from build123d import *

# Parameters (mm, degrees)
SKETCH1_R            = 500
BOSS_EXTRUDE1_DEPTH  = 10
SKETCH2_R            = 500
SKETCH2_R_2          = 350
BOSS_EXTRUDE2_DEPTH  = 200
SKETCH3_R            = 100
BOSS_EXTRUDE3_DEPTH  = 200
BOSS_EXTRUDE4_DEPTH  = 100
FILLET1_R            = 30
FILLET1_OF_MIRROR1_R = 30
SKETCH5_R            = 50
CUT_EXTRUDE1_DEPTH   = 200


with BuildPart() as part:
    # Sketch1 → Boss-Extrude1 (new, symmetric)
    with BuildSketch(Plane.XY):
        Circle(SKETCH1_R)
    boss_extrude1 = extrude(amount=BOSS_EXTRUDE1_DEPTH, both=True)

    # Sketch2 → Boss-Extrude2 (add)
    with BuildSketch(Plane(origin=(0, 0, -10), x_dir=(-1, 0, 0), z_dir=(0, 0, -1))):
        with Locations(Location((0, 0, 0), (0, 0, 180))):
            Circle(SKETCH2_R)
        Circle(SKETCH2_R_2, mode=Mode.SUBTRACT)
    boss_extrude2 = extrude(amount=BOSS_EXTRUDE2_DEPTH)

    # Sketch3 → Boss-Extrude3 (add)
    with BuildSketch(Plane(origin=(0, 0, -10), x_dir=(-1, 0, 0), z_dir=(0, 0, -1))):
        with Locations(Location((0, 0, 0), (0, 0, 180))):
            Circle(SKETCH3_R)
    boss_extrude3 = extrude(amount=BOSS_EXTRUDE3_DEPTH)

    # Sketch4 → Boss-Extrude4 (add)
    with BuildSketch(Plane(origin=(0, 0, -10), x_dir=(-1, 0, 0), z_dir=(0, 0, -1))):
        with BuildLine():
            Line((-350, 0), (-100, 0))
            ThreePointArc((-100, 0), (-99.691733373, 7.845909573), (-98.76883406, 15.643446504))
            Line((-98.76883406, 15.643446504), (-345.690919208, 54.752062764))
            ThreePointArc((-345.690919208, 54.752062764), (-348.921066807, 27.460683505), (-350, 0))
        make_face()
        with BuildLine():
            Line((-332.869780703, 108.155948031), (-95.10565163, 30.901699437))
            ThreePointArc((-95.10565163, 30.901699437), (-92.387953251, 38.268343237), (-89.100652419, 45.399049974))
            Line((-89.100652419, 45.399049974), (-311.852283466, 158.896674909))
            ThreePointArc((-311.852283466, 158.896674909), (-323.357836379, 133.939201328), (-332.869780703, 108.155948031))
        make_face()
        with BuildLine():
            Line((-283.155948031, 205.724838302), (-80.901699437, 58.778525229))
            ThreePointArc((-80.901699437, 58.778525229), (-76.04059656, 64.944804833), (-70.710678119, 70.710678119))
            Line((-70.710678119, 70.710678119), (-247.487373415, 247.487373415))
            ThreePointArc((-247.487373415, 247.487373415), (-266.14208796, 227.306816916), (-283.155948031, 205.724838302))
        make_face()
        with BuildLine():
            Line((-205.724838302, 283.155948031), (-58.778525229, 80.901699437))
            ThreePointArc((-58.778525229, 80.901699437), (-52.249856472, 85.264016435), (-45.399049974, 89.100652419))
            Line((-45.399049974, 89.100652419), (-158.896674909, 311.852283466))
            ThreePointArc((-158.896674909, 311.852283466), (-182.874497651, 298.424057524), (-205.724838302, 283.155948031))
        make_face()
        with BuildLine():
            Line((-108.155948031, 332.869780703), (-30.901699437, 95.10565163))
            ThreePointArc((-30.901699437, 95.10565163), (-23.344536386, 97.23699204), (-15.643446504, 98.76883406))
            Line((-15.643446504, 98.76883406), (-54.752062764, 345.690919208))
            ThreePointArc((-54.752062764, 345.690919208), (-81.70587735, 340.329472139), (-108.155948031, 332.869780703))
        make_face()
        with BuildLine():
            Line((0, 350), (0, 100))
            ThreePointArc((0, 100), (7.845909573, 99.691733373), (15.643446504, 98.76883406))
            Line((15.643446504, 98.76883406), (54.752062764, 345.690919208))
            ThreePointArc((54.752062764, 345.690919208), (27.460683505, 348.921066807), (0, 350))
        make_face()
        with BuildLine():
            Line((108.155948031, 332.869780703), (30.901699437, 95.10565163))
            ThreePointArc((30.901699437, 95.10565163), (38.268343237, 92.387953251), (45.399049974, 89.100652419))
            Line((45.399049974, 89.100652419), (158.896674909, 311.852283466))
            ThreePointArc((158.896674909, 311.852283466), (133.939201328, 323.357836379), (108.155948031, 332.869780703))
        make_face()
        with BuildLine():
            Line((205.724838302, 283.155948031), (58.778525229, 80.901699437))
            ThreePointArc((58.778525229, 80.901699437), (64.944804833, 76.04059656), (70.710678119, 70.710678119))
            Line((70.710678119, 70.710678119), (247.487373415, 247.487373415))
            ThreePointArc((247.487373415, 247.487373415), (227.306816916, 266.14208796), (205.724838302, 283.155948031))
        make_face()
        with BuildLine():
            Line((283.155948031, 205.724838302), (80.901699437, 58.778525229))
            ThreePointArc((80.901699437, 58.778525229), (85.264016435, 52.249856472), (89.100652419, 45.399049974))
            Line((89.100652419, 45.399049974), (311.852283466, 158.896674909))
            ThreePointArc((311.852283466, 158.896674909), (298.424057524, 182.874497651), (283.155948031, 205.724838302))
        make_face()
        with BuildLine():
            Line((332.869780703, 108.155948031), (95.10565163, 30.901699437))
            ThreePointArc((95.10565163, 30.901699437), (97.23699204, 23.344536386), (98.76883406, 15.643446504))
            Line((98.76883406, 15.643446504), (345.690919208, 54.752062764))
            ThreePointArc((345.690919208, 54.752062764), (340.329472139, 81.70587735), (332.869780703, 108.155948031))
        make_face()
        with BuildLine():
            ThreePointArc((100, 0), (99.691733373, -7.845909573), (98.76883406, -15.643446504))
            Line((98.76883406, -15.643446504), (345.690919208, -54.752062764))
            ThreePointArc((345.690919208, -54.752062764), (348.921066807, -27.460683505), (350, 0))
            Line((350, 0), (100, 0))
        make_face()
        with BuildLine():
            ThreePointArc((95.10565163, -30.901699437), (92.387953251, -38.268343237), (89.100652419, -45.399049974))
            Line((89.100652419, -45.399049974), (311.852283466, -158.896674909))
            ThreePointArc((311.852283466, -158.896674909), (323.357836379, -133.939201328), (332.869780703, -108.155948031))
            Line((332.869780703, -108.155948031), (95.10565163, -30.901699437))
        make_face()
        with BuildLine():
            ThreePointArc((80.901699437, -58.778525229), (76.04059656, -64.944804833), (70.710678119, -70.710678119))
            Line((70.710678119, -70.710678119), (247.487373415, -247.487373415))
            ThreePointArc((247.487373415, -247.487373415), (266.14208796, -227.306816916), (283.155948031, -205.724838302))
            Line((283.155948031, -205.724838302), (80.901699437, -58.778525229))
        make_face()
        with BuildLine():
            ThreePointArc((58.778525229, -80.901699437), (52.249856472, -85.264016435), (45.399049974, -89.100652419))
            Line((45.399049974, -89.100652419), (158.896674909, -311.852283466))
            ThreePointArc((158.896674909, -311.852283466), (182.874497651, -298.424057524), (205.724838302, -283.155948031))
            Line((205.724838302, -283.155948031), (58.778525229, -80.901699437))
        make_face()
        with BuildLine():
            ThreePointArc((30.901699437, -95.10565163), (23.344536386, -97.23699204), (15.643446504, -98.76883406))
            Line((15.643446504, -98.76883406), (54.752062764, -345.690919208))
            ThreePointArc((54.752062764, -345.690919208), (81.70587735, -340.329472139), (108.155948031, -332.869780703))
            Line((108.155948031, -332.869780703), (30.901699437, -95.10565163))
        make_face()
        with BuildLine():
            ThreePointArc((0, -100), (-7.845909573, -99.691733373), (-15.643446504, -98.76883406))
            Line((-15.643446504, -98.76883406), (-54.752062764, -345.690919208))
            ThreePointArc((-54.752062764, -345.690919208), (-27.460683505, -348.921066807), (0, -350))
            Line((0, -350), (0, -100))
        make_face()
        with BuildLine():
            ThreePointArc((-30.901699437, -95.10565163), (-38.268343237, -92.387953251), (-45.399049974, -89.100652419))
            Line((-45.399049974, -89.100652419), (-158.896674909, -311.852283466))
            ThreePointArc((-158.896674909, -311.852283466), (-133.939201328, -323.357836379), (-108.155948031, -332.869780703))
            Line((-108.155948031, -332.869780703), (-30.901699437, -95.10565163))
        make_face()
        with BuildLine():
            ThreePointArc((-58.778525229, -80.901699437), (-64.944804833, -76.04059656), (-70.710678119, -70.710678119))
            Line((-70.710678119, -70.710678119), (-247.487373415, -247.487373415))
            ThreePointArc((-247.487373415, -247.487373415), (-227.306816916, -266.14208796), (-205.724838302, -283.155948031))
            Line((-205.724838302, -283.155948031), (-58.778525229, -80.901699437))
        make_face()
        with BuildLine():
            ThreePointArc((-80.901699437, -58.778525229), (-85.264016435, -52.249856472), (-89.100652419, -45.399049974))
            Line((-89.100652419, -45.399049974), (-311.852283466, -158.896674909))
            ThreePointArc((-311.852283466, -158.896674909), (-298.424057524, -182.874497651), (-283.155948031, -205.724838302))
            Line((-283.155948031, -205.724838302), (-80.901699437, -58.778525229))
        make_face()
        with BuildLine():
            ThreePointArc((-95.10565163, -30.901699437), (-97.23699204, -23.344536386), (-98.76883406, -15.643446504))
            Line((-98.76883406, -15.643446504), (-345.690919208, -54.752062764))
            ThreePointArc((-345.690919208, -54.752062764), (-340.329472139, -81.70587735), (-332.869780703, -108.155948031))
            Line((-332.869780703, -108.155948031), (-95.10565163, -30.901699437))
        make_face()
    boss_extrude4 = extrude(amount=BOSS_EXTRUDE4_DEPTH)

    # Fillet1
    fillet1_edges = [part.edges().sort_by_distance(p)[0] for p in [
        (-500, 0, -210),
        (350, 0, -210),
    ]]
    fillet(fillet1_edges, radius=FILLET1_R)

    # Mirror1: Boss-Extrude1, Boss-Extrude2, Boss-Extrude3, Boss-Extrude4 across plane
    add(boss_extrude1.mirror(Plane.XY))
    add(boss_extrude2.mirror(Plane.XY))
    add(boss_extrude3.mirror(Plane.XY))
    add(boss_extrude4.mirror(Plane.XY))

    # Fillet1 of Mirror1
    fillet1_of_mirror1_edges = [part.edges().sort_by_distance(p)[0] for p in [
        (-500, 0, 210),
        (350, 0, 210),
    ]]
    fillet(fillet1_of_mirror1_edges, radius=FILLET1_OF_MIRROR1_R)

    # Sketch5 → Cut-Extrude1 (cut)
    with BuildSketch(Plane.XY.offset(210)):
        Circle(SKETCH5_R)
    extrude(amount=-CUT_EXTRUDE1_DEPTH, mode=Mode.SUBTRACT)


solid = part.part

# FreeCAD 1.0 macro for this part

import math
import FreeCAD as App
import Part
import Sketcher
from FreeCAD import Vector
Q = App.Units.Quantity


def edges_at(feature, points):
    """Names of the edges that pass closest to the given points."""
    edges = feature.Shape.Edges
    near = lambda p: min(range(len(edges)), key=lambda i: edges[i].distToShape(Part.Vertex(*p))[0])
    return sorted({f"Edge{near(p) + 1}" for p in points})

doc = App.newDocument("Part")
body = doc.addObject("PartDesign::Body", "Body")

# Sketch on XY plane
sketch1 = body.newObject("Sketcher::SketchObject", "Sketch")
sketch1.AttachmentSupport = (doc.getObject("XY_Plane"), [""])
sketch1.MapMode = "FlatFace"
sketch1.addGeometry(Part.Circle(Vector(0, 0, 0), Vector(0, 0, 1), 500), False)
sketch1.addConstraint(Sketcher.Constraint("Coincident", 0, 3, -1, 1))
sketch1.addConstraint(Sketcher.Constraint("Diameter", 0, 1000.0))
pad1 = body.newObject("PartDesign::Pad", "Pad")
pad1.Profile = sketch1
pad1.Length = 20
pad1.Midplane = True

# Sketch on XY plane
sketch2 = body.newObject("Sketcher::SketchObject", "Sketch001")
sketch2.AttachmentSupport = (doc.getObject("XY_Plane"), [""])
sketch2.MapMode = "FlatFace"
sketch2.AttachmentOffset = App.Placement(Vector(0, 0, -10), App.Rotation())
sketch2.addGeometry(Part.Circle(Vector(0, 0, 0), Vector(0, 0, 1), 500), False)
sketch2.addGeometry(Part.Circle(Vector(0, 0, 0), Vector(0, 0, 1), 350), False)
sketch2.addConstraint(Sketcher.Constraint("Coincident", 0, 3, -1, 1))
sketch2.addConstraint(Sketcher.Constraint("Coincident", 1, 3, -1, 1))
sketch2.addConstraint(Sketcher.Constraint("Diameter", 0, 1000.0))
sketch2.addConstraint(Sketcher.Constraint("Diameter", 1, 700.0))
pad2 = body.newObject("PartDesign::Pad", "Pad001")
pad2.Profile = sketch2
pad2.Length = 200
pad2.Reversed = True

# Sketch on XY plane
sketch3 = body.newObject("Sketcher::SketchObject", "Sketch002")
sketch3.AttachmentSupport = (doc.getObject("XY_Plane"), [""])
sketch3.MapMode = "FlatFace"
sketch3.AttachmentOffset = App.Placement(Vector(0, 0, -10), App.Rotation())
sketch3.addGeometry(Part.Circle(Vector(0, 0, 0), Vector(0, 0, 1), 100), False)
sketch3.addConstraint(Sketcher.Constraint("Coincident", 0, 3, -1, 1))
sketch3.addConstraint(Sketcher.Constraint("Diameter", 0, 200.0))
pad3 = body.newObject("PartDesign::Pad", "Pad002")
pad3.Profile = sketch3
pad3.Length = 200
pad3.Reversed = True

# Sketch on XY plane
sketch4 = body.newObject("Sketcher::SketchObject", "Sketch003")
sketch4.AttachmentSupport = (doc.getObject("XY_Plane"), [""])
sketch4.MapMode = "FlatFace"
sketch4.AttachmentOffset = App.Placement(Vector(0, 0, -10), App.Rotation())
sketch4.addGeometry(Part.LineSegment(Vector(350, 0, 0), Vector(100, 0, 0)), False)
sketch4.addGeometry(Part.ArcOfCircle(Part.Circle(Vector(0, 0, 0), Vector(0, 0, 1), 100), math.radians(0), math.radians(9)), False)
sketch4.addGeometry(Part.LineSegment(Vector(98.768834, 15.643447, 0), Vector(345.690919, 54.752063, 0)), False)
sketch4.addGeometry(Part.ArcOfCircle(Part.Circle(Vector(0, 0, 0), Vector(0, 0, 1), 350), math.radians(0), math.radians(9)), False)
sketch4.addGeometry(Part.LineSegment(Vector(332.869781, 108.155948, 0), Vector(95.105652, 30.901699, 0)), False)
sketch4.addGeometry(Part.ArcOfCircle(Part.Circle(Vector(0, 0, 0), Vector(0, 0, 1), 100), math.radians(18), math.radians(27)), False)
sketch4.addGeometry(Part.LineSegment(Vector(89.100652, 45.39905, 0), Vector(311.852283, 158.896675, 0)), False)
sketch4.addGeometry(Part.ArcOfCircle(Part.Circle(Vector(0, 0, 0), Vector(0, 0, 1), 350), math.radians(18), math.radians(27)), False)
sketch4.addGeometry(Part.LineSegment(Vector(283.155948, 205.724838, 0), Vector(80.901699, 58.778525, 0)), False)
sketch4.addGeometry(Part.ArcOfCircle(Part.Circle(Vector(0, 0, 0), Vector(0, 0, 1), 100), math.radians(36), math.radians(45)), False)
sketch4.addGeometry(Part.LineSegment(Vector(70.710678, 70.710678, 0), Vector(247.487373, 247.487373, 0)), False)
sketch4.addGeometry(Part.ArcOfCircle(Part.Circle(Vector(0, 0, 0), Vector(0, 0, 1), 350), math.radians(36), math.radians(45)), False)
sketch4.addGeometry(Part.LineSegment(Vector(205.724838, 283.155948, 0), Vector(58.778525, 80.901699, 0)), False)
sketch4.addGeometry(Part.ArcOfCircle(Part.Circle(Vector(0, 0, 0), Vector(0, 0, 1), 100), math.radians(54), math.radians(63)), False)
sketch4.addGeometry(Part.LineSegment(Vector(45.39905, 89.100652, 0), Vector(158.896675, 311.852283, 0)), False)
sketch4.addGeometry(Part.ArcOfCircle(Part.Circle(Vector(0, 0, 0), Vector(0, 0, 1), 350), math.radians(54), math.radians(63)), False)
sketch4.addGeometry(Part.LineSegment(Vector(108.155948, 332.869781, 0), Vector(30.901699, 95.105652, 0)), False)
sketch4.addGeometry(Part.ArcOfCircle(Part.Circle(Vector(0, 0, 0), Vector(0, 0, 1), 100), math.radians(72), math.radians(81)), False)
sketch4.addGeometry(Part.LineSegment(Vector(15.643447, 98.768834, 0), Vector(54.752063, 345.690919, 0)), False)
sketch4.addGeometry(Part.ArcOfCircle(Part.Circle(Vector(0, 0, 0), Vector(0, 0, 1), 350), math.radians(72), math.radians(81)), False)
sketch4.addGeometry(Part.LineSegment(Vector(0, 350, 0), Vector(0, 100, 0)), False)
sketch4.addGeometry(Part.ArcOfCircle(Part.Circle(Vector(0, 0, 0), Vector(0, 0, 1), 100), math.radians(90), math.radians(99)), False)
sketch4.addGeometry(Part.LineSegment(Vector(-15.643447, 98.768834, 0), Vector(-54.752063, 345.690919, 0)), False)
sketch4.addGeometry(Part.ArcOfCircle(Part.Circle(Vector(0, 0, 0), Vector(0, 0, 1), 350), math.radians(90), math.radians(99)), False)
sketch4.addGeometry(Part.LineSegment(Vector(-108.155948, 332.869781, 0), Vector(-30.901699, 95.105652, 0)), False)
sketch4.addGeometry(Part.ArcOfCircle(Part.Circle(Vector(0, 0, 0), Vector(0, 0, 1), 100), math.radians(108), math.radians(117)), False)
sketch4.addGeometry(Part.LineSegment(Vector(-45.39905, 89.100652, 0), Vector(-158.896675, 311.852283, 0)), False)
sketch4.addGeometry(Part.ArcOfCircle(Part.Circle(Vector(0, 0, 0), Vector(0, 0, 1), 350), math.radians(108), math.radians(117)), False)
sketch4.addGeometry(Part.LineSegment(Vector(-205.724838, 283.155948, 0), Vector(-58.778525, 80.901699, 0)), False)
sketch4.addGeometry(Part.ArcOfCircle(Part.Circle(Vector(0, 0, 0), Vector(0, 0, 1), 100), math.radians(126), math.radians(135)), False)
sketch4.addGeometry(Part.LineSegment(Vector(-70.710678, 70.710678, 0), Vector(-247.487373, 247.487373, 0)), False)
sketch4.addGeometry(Part.ArcOfCircle(Part.Circle(Vector(0, 0, 0), Vector(0, 0, 1), 350), math.radians(126), math.radians(135)), False)
sketch4.addGeometry(Part.LineSegment(Vector(-283.155948, 205.724838, 0), Vector(-80.901699, 58.778525, 0)), False)
sketch4.addGeometry(Part.ArcOfCircle(Part.Circle(Vector(0, 0, 0), Vector(0, 0, 1), 100), math.radians(144), math.radians(153)), False)
sketch4.addGeometry(Part.LineSegment(Vector(-89.100652, 45.39905, 0), Vector(-311.852283, 158.896675, 0)), False)
sketch4.addGeometry(Part.ArcOfCircle(Part.Circle(Vector(0, 0, 0), Vector(0, 0, 1), 350), math.radians(144), math.radians(153)), False)
sketch4.addGeometry(Part.LineSegment(Vector(-332.869781, 108.155948, 0), Vector(-95.105652, 30.901699, 0)), False)
sketch4.addGeometry(Part.ArcOfCircle(Part.Circle(Vector(0, 0, 0), Vector(0, 0, 1), 100), math.radians(162), math.radians(171)), False)
sketch4.addGeometry(Part.LineSegment(Vector(-98.768834, 15.643447, 0), Vector(-345.690919, 54.752063, 0)), False)
sketch4.addGeometry(Part.ArcOfCircle(Part.Circle(Vector(0, 0, 0), Vector(0, 0, 1), 350), math.radians(162), math.radians(171)), False)
sketch4.addGeometry(Part.ArcOfCircle(Part.Circle(Vector(0, 0, 0), Vector(0, 0, 1), 100), math.radians(-180), math.radians(-171)), False)
sketch4.addGeometry(Part.LineSegment(Vector(-98.768834, -15.643447, 0), Vector(-345.690919, -54.752063, 0)), False)
sketch4.addGeometry(Part.ArcOfCircle(Part.Circle(Vector(0, 0, 0), Vector(0, 0, 1), 350), math.radians(180), math.radians(189)), False)
sketch4.addGeometry(Part.LineSegment(Vector(-350, 0, 0), Vector(-100, 0, 0)), False)
sketch4.addGeometry(Part.ArcOfCircle(Part.Circle(Vector(0, 0, 0), Vector(0, 0, 1), 100), math.radians(-162), math.radians(-153)), False)
sketch4.addGeometry(Part.LineSegment(Vector(-89.100652, -45.39905, 0), Vector(-311.852283, -158.896675, 0)), False)
sketch4.addGeometry(Part.ArcOfCircle(Part.Circle(Vector(0, 0, 0), Vector(0, 0, 1), 350), math.radians(-162), math.radians(-153)), False)
sketch4.addGeometry(Part.LineSegment(Vector(-332.869781, -108.155948, 0), Vector(-95.105652, -30.901699, 0)), False)
sketch4.addGeometry(Part.ArcOfCircle(Part.Circle(Vector(0, 0, 0), Vector(0, 0, 1), 100), math.radians(-144), math.radians(-135)), False)
sketch4.addGeometry(Part.LineSegment(Vector(-70.710678, -70.710678, 0), Vector(-247.487373, -247.487373, 0)), False)
sketch4.addGeometry(Part.ArcOfCircle(Part.Circle(Vector(0, 0, 0), Vector(0, 0, 1), 350), math.radians(-144), math.radians(-135)), False)
sketch4.addGeometry(Part.LineSegment(Vector(-283.155948, -205.724838, 0), Vector(-80.901699, -58.778525, 0)), False)
sketch4.addGeometry(Part.ArcOfCircle(Part.Circle(Vector(0, 0, 0), Vector(0, 0, 1), 100), math.radians(-126), math.radians(-117)), False)
sketch4.addGeometry(Part.LineSegment(Vector(-45.39905, -89.100652, 0), Vector(-158.896675, -311.852283, 0)), False)
sketch4.addGeometry(Part.ArcOfCircle(Part.Circle(Vector(0, 0, 0), Vector(0, 0, 1), 350), math.radians(-126), math.radians(-117)), False)
sketch4.addGeometry(Part.LineSegment(Vector(-205.724838, -283.155948, 0), Vector(-58.778525, -80.901699, 0)), False)
sketch4.addGeometry(Part.ArcOfCircle(Part.Circle(Vector(0, 0, 0), Vector(0, 0, 1), 100), math.radians(-108), math.radians(-99)), False)
sketch4.addGeometry(Part.LineSegment(Vector(-15.643447, -98.768834, 0), Vector(-54.752063, -345.690919, 0)), False)
sketch4.addGeometry(Part.ArcOfCircle(Part.Circle(Vector(0, 0, 0), Vector(0, 0, 1), 350), math.radians(-108), math.radians(-99)), False)
sketch4.addGeometry(Part.LineSegment(Vector(-108.155948, -332.869781, 0), Vector(-30.901699, -95.105652, 0)), False)
sketch4.addGeometry(Part.ArcOfCircle(Part.Circle(Vector(0, 0, 0), Vector(0, 0, 1), 100), math.radians(-90), math.radians(-81)), False)
sketch4.addGeometry(Part.LineSegment(Vector(15.643447, -98.768834, 0), Vector(54.752063, -345.690919, 0)), False)
sketch4.addGeometry(Part.ArcOfCircle(Part.Circle(Vector(0, 0, 0), Vector(0, 0, 1), 350), math.radians(-90), math.radians(-81)), False)
sketch4.addGeometry(Part.LineSegment(Vector(0, -350, 0), Vector(0, -100, 0)), False)
sketch4.addGeometry(Part.ArcOfCircle(Part.Circle(Vector(0, 0, 0), Vector(0, 0, 1), 100), math.radians(-72), math.radians(-63)), False)
sketch4.addGeometry(Part.LineSegment(Vector(45.39905, -89.100652, 0), Vector(158.896675, -311.852283, 0)), False)
sketch4.addGeometry(Part.ArcOfCircle(Part.Circle(Vector(0, 0, 0), Vector(0, 0, 1), 350), math.radians(-72), math.radians(-63)), False)
sketch4.addGeometry(Part.LineSegment(Vector(108.155948, -332.869781, 0), Vector(30.901699, -95.105652, 0)), False)
sketch4.addGeometry(Part.ArcOfCircle(Part.Circle(Vector(0, 0, 0), Vector(0, 0, 1), 100), math.radians(-54), math.radians(-45)), False)
sketch4.addGeometry(Part.LineSegment(Vector(70.710678, -70.710678, 0), Vector(247.487373, -247.487373, 0)), False)
sketch4.addGeometry(Part.ArcOfCircle(Part.Circle(Vector(0, 0, 0), Vector(0, 0, 1), 350), math.radians(-54), math.radians(-45)), False)
sketch4.addGeometry(Part.LineSegment(Vector(205.724838, -283.155948, 0), Vector(58.778525, -80.901699, 0)), False)
sketch4.addGeometry(Part.ArcOfCircle(Part.Circle(Vector(0, 0, 0), Vector(0, 0, 1), 100), math.radians(-36), math.radians(-27)), False)
sketch4.addGeometry(Part.LineSegment(Vector(89.100652, -45.39905, 0), Vector(311.852283, -158.896675, 0)), False)
sketch4.addGeometry(Part.ArcOfCircle(Part.Circle(Vector(0, 0, 0), Vector(0, 0, 1), 350), math.radians(-36), math.radians(-27)), False)
sketch4.addGeometry(Part.LineSegment(Vector(283.155948, -205.724838, 0), Vector(80.901699, -58.778525, 0)), False)
sketch4.addGeometry(Part.ArcOfCircle(Part.Circle(Vector(0, 0, 0), Vector(0, 0, 1), 100), math.radians(-18), math.radians(-9)), False)
sketch4.addGeometry(Part.LineSegment(Vector(98.768834, -15.643447, 0), Vector(345.690919, -54.752063, 0)), False)
sketch4.addGeometry(Part.ArcOfCircle(Part.Circle(Vector(0, 0, 0), Vector(0, 0, 1), 350), math.radians(-18), math.radians(-9)), False)
sketch4.addGeometry(Part.LineSegment(Vector(332.869781, -108.155948, 0), Vector(95.105652, -30.901699, 0)), False)
sketch4.addConstraint(Sketcher.Constraint("Coincident", 0, 2, 1, 1))
sketch4.addConstraint(Sketcher.Constraint("Coincident", 1, 2, 2, 1))
sketch4.addConstraint(Sketcher.Constraint("Coincident", 2, 2, 3, 2))
sketch4.addConstraint(Sketcher.Constraint("Coincident", 3, 1, 0, 1))
sketch4.addConstraint(Sketcher.Constraint("Coincident", 4, 2, 5, 1))
sketch4.addConstraint(Sketcher.Constraint("Coincident", 5, 2, 6, 1))
sketch4.addConstraint(Sketcher.Constraint("Coincident", 6, 2, 7, 2))
sketch4.addConstraint(Sketcher.Constraint("Coincident", 7, 1, 4, 1))
sketch4.addConstraint(Sketcher.Constraint("Coincident", 8, 2, 9, 1))
sketch4.addConstraint(Sketcher.Constraint("Coincident", 9, 2, 10, 1))
sketch4.addConstraint(Sketcher.Constraint("Coincident", 10, 2, 11, 2))
sketch4.addConstraint(Sketcher.Constraint("Coincident", 11, 1, 8, 1))
sketch4.addConstraint(Sketcher.Constraint("Coincident", 12, 2, 13, 1))
sketch4.addConstraint(Sketcher.Constraint("Coincident", 13, 2, 14, 1))
sketch4.addConstraint(Sketcher.Constraint("Coincident", 14, 2, 15, 2))
sketch4.addConstraint(Sketcher.Constraint("Coincident", 15, 1, 12, 1))
sketch4.addConstraint(Sketcher.Constraint("Coincident", 16, 2, 17, 1))
sketch4.addConstraint(Sketcher.Constraint("Coincident", 17, 2, 18, 1))
sketch4.addConstraint(Sketcher.Constraint("Coincident", 18, 2, 19, 2))
sketch4.addConstraint(Sketcher.Constraint("Coincident", 19, 1, 16, 1))
sketch4.addConstraint(Sketcher.Constraint("Coincident", 20, 2, 21, 1))
sketch4.addConstraint(Sketcher.Constraint("Coincident", 21, 2, 22, 1))
sketch4.addConstraint(Sketcher.Constraint("Coincident", 22, 2, 23, 2))
sketch4.addConstraint(Sketcher.Constraint("Coincident", 23, 1, 20, 1))
sketch4.addConstraint(Sketcher.Constraint("Coincident", 24, 2, 25, 1))
sketch4.addConstraint(Sketcher.Constraint("Coincident", 25, 2, 26, 1))
sketch4.addConstraint(Sketcher.Constraint("Coincident", 26, 2, 27, 2))
sketch4.addConstraint(Sketcher.Constraint("Coincident", 27, 1, 24, 1))
sketch4.addConstraint(Sketcher.Constraint("Coincident", 28, 2, 29, 1))
sketch4.addConstraint(Sketcher.Constraint("Coincident", 29, 2, 30, 1))
sketch4.addConstraint(Sketcher.Constraint("Coincident", 30, 2, 31, 2))
sketch4.addConstraint(Sketcher.Constraint("Coincident", 31, 1, 28, 1))
sketch4.addConstraint(Sketcher.Constraint("Coincident", 32, 2, 33, 1))
sketch4.addConstraint(Sketcher.Constraint("Coincident", 33, 2, 34, 1))
sketch4.addConstraint(Sketcher.Constraint("Coincident", 34, 2, 35, 2))
sketch4.addConstraint(Sketcher.Constraint("Coincident", 35, 1, 32, 1))
sketch4.addConstraint(Sketcher.Constraint("Coincident", 36, 2, 37, 1))
sketch4.addConstraint(Sketcher.Constraint("Coincident", 37, 2, 38, 1))
sketch4.addConstraint(Sketcher.Constraint("Coincident", 38, 2, 39, 2))
sketch4.addConstraint(Sketcher.Constraint("Coincident", 39, 1, 36, 1))
sketch4.addConstraint(Sketcher.Constraint("Coincident", 40, 2, 41, 1))
sketch4.addConstraint(Sketcher.Constraint("Coincident", 41, 2, 42, 2))
sketch4.addConstraint(Sketcher.Constraint("Coincident", 42, 1, 43, 1))
sketch4.addConstraint(Sketcher.Constraint("Coincident", 43, 2, 40, 1))
sketch4.addConstraint(Sketcher.Constraint("Coincident", 44, 2, 45, 1))
sketch4.addConstraint(Sketcher.Constraint("Coincident", 45, 2, 46, 2))
sketch4.addConstraint(Sketcher.Constraint("Coincident", 46, 1, 47, 1))
sketch4.addConstraint(Sketcher.Constraint("Coincident", 47, 2, 44, 1))
sketch4.addConstraint(Sketcher.Constraint("Coincident", 48, 2, 49, 1))
sketch4.addConstraint(Sketcher.Constraint("Coincident", 49, 2, 50, 2))
sketch4.addConstraint(Sketcher.Constraint("Coincident", 50, 1, 51, 1))
sketch4.addConstraint(Sketcher.Constraint("Coincident", 51, 2, 48, 1))
sketch4.addConstraint(Sketcher.Constraint("Coincident", 52, 2, 53, 1))
sketch4.addConstraint(Sketcher.Constraint("Coincident", 53, 2, 54, 2))
sketch4.addConstraint(Sketcher.Constraint("Coincident", 54, 1, 55, 1))
sketch4.addConstraint(Sketcher.Constraint("Coincident", 55, 2, 52, 1))
sketch4.addConstraint(Sketcher.Constraint("Coincident", 56, 2, 57, 1))
sketch4.addConstraint(Sketcher.Constraint("Coincident", 57, 2, 58, 2))
sketch4.addConstraint(Sketcher.Constraint("Coincident", 58, 1, 59, 1))
sketch4.addConstraint(Sketcher.Constraint("Coincident", 59, 2, 56, 1))
sketch4.addConstraint(Sketcher.Constraint("Coincident", 60, 2, 61, 1))
sketch4.addConstraint(Sketcher.Constraint("Coincident", 61, 2, 62, 2))
sketch4.addConstraint(Sketcher.Constraint("Coincident", 62, 1, 63, 1))
sketch4.addConstraint(Sketcher.Constraint("Coincident", 63, 2, 60, 1))
sketch4.addConstraint(Sketcher.Constraint("Coincident", 64, 2, 65, 1))
sketch4.addConstraint(Sketcher.Constraint("Coincident", 65, 2, 66, 2))
sketch4.addConstraint(Sketcher.Constraint("Coincident", 66, 1, 67, 1))
sketch4.addConstraint(Sketcher.Constraint("Coincident", 67, 2, 64, 1))
sketch4.addConstraint(Sketcher.Constraint("Coincident", 68, 2, 69, 1))
sketch4.addConstraint(Sketcher.Constraint("Coincident", 69, 2, 70, 2))
sketch4.addConstraint(Sketcher.Constraint("Coincident", 70, 1, 71, 1))
sketch4.addConstraint(Sketcher.Constraint("Coincident", 71, 2, 68, 1))
sketch4.addConstraint(Sketcher.Constraint("Coincident", 72, 2, 73, 1))
sketch4.addConstraint(Sketcher.Constraint("Coincident", 73, 2, 74, 2))
sketch4.addConstraint(Sketcher.Constraint("Coincident", 74, 1, 75, 1))
sketch4.addConstraint(Sketcher.Constraint("Coincident", 75, 2, 72, 1))
sketch4.addConstraint(Sketcher.Constraint("Coincident", 76, 2, 77, 1))
sketch4.addConstraint(Sketcher.Constraint("Coincident", 77, 2, 78, 2))
sketch4.addConstraint(Sketcher.Constraint("Coincident", 78, 1, 79, 1))
sketch4.addConstraint(Sketcher.Constraint("Coincident", 79, 2, 76, 1))
sketch4.addConstraint(Sketcher.Constraint("Horizontal", 0))
sketch4.addConstraint(Sketcher.Constraint("Vertical", 20))
sketch4.addConstraint(Sketcher.Constraint("Horizontal", 43))
sketch4.addConstraint(Sketcher.Constraint("Vertical", 63))
sketch4.addConstraint(Sketcher.Constraint("Coincident", 1, 3, -1, 1))
sketch4.addConstraint(Sketcher.Constraint("Coincident", 3, 3, -1, 1))
sketch4.addConstraint(Sketcher.Constraint("Coincident", 5, 3, -1, 1))
sketch4.addConstraint(Sketcher.Constraint("Coincident", 7, 3, -1, 1))
sketch4.addConstraint(Sketcher.Constraint("Coincident", 9, 3, -1, 1))
sketch4.addConstraint(Sketcher.Constraint("Coincident", 11, 3, -1, 1))
sketch4.addConstraint(Sketcher.Constraint("Coincident", 13, 3, -1, 1))
sketch4.addConstraint(Sketcher.Constraint("Coincident", 15, 3, -1, 1))
sketch4.addConstraint(Sketcher.Constraint("Coincident", 17, 3, -1, 1))
sketch4.addConstraint(Sketcher.Constraint("Coincident", 19, 3, -1, 1))
sketch4.addConstraint(Sketcher.Constraint("Coincident", 21, 3, -1, 1))
sketch4.addConstraint(Sketcher.Constraint("Coincident", 23, 3, -1, 1))
sketch4.addConstraint(Sketcher.Constraint("Coincident", 25, 3, -1, 1))
sketch4.addConstraint(Sketcher.Constraint("Coincident", 27, 3, -1, 1))
sketch4.addConstraint(Sketcher.Constraint("Coincident", 29, 3, -1, 1))
sketch4.addConstraint(Sketcher.Constraint("Coincident", 31, 3, -1, 1))
sketch4.addConstraint(Sketcher.Constraint("Coincident", 33, 3, -1, 1))
sketch4.addConstraint(Sketcher.Constraint("Coincident", 35, 3, -1, 1))
sketch4.addConstraint(Sketcher.Constraint("Coincident", 37, 3, -1, 1))
sketch4.addConstraint(Sketcher.Constraint("Coincident", 39, 3, -1, 1))
sketch4.addConstraint(Sketcher.Constraint("Coincident", 40, 3, -1, 1))
sketch4.addConstraint(Sketcher.Constraint("Coincident", 42, 3, -1, 1))
sketch4.addConstraint(Sketcher.Constraint("Coincident", 44, 3, -1, 1))
sketch4.addConstraint(Sketcher.Constraint("Coincident", 46, 3, -1, 1))
sketch4.addConstraint(Sketcher.Constraint("Coincident", 48, 3, -1, 1))
sketch4.addConstraint(Sketcher.Constraint("Coincident", 50, 3, -1, 1))
sketch4.addConstraint(Sketcher.Constraint("Coincident", 52, 3, -1, 1))
sketch4.addConstraint(Sketcher.Constraint("Coincident", 54, 3, -1, 1))
sketch4.addConstraint(Sketcher.Constraint("Coincident", 56, 3, -1, 1))
sketch4.addConstraint(Sketcher.Constraint("Coincident", 58, 3, -1, 1))
sketch4.addConstraint(Sketcher.Constraint("Coincident", 60, 3, -1, 1))
sketch4.addConstraint(Sketcher.Constraint("Coincident", 62, 3, -1, 1))
sketch4.addConstraint(Sketcher.Constraint("Coincident", 64, 3, -1, 1))
sketch4.addConstraint(Sketcher.Constraint("Coincident", 66, 3, -1, 1))
sketch4.addConstraint(Sketcher.Constraint("Coincident", 68, 3, -1, 1))
sketch4.addConstraint(Sketcher.Constraint("Coincident", 70, 3, -1, 1))
sketch4.addConstraint(Sketcher.Constraint("Coincident", 72, 3, -1, 1))
sketch4.addConstraint(Sketcher.Constraint("Coincident", 74, 3, -1, 1))
sketch4.addConstraint(Sketcher.Constraint("Coincident", 76, 3, -1, 1))
sketch4.addConstraint(Sketcher.Constraint("Coincident", 78, 3, -1, 1))
sketch4.addConstraint(Sketcher.Constraint("Equal", 1, 5))
sketch4.addConstraint(Sketcher.Constraint("Equal", 3, 7))
sketch4.addConstraint(Sketcher.Constraint("Equal", 5, 9))
sketch4.addConstraint(Sketcher.Constraint("Equal", 7, 11))
sketch4.addConstraint(Sketcher.Constraint("Equal", 9, 13))
sketch4.addConstraint(Sketcher.Constraint("Equal", 11, 15))
sketch4.addConstraint(Sketcher.Constraint("Equal", 13, 17))
sketch4.addConstraint(Sketcher.Constraint("Equal", 15, 19))
sketch4.addConstraint(Sketcher.Constraint("Equal", 17, 21))
sketch4.addConstraint(Sketcher.Constraint("Equal", 19, 23))
sketch4.addConstraint(Sketcher.Constraint("Equal", 21, 25))
sketch4.addConstraint(Sketcher.Constraint("Equal", 23, 27))
sketch4.addConstraint(Sketcher.Constraint("Equal", 25, 29))
sketch4.addConstraint(Sketcher.Constraint("Equal", 27, 31))
sketch4.addConstraint(Sketcher.Constraint("Equal", 29, 33))
sketch4.addConstraint(Sketcher.Constraint("Equal", 31, 35))
sketch4.addConstraint(Sketcher.Constraint("Equal", 33, 37))
sketch4.addConstraint(Sketcher.Constraint("Equal", 35, 39))
sketch4.addConstraint(Sketcher.Constraint("Equal", 37, 40))
sketch4.addConstraint(Sketcher.Constraint("Equal", 39, 42))
sketch4.addConstraint(Sketcher.Constraint("Equal", 40, 44))
sketch4.addConstraint(Sketcher.Constraint("Equal", 42, 46))
sketch4.addConstraint(Sketcher.Constraint("Equal", 44, 48))
sketch4.addConstraint(Sketcher.Constraint("Equal", 46, 50))
sketch4.addConstraint(Sketcher.Constraint("Equal", 48, 52))
sketch4.addConstraint(Sketcher.Constraint("Equal", 50, 54))
sketch4.addConstraint(Sketcher.Constraint("Equal", 52, 56))
sketch4.addConstraint(Sketcher.Constraint("Equal", 54, 58))
sketch4.addConstraint(Sketcher.Constraint("Equal", 56, 60))
sketch4.addConstraint(Sketcher.Constraint("Equal", 58, 62))
sketch4.addConstraint(Sketcher.Constraint("Equal", 60, 64))
sketch4.addConstraint(Sketcher.Constraint("Equal", 62, 66))
sketch4.addConstraint(Sketcher.Constraint("Equal", 64, 68))
sketch4.addConstraint(Sketcher.Constraint("Equal", 66, 70))
sketch4.addConstraint(Sketcher.Constraint("Equal", 68, 72))
sketch4.addConstraint(Sketcher.Constraint("Equal", 70, 74))
sketch4.addConstraint(Sketcher.Constraint("Equal", 72, 76))
sketch4.addConstraint(Sketcher.Constraint("Equal", 74, 78))
sketch4.addConstraint(Sketcher.Constraint("PointOnObject", 0, 2, -1))
sketch4.addConstraint(Sketcher.Constraint("PointOnObject", 20, 2, -2))
sketch4.addConstraint(Sketcher.Constraint("PointOnObject", 42, 1, -1))
sketch4.addConstraint(Sketcher.Constraint("PointOnObject", 62, 1, -2))
sketch4.addConstraint(Sketcher.Constraint("Perpendicular", 2, 22))
sketch4.addConstraint(Sketcher.Constraint("Perpendicular", 4, 24))
sketch4.addConstraint(Sketcher.Constraint("Perpendicular", 6, 26))
sketch4.addConstraint(Sketcher.Constraint("Perpendicular", 8, 28))
sketch4.addConstraint(Sketcher.Constraint("Perpendicular", 10, 30))
sketch4.addConstraint(Sketcher.Constraint("Perpendicular", 12, 32))
sketch4.addConstraint(Sketcher.Constraint("Perpendicular", 14, 34))
sketch4.addConstraint(Sketcher.Constraint("Perpendicular", 16, 36))
sketch4.addConstraint(Sketcher.Constraint("Perpendicular", 18, 38))
sketch4.addConstraint(Sketcher.Constraint("Perpendicular", 22, 41))
sketch4.addConstraint(Sketcher.Constraint("Perpendicular", 26, 45))
sketch4.addConstraint(Sketcher.Constraint("Perpendicular", 24, 47))
sketch4.addConstraint(Sketcher.Constraint("Perpendicular", 30, 49))
sketch4.addConstraint(Sketcher.Constraint("Perpendicular", 28, 51))
sketch4.addConstraint(Sketcher.Constraint("Perpendicular", 34, 53))
sketch4.addConstraint(Sketcher.Constraint("Perpendicular", 32, 55))
sketch4.addConstraint(Sketcher.Constraint("Perpendicular", 38, 57))
sketch4.addConstraint(Sketcher.Constraint("Perpendicular", 36, 59))
sketch4.addConstraint(Sketcher.Constraint("Perpendicular", 41, 61))
sketch4.addConstraint(Sketcher.Constraint("Perpendicular", 45, 65))
sketch4.addConstraint(Sketcher.Constraint("Perpendicular", 47, 67))
sketch4.addConstraint(Sketcher.Constraint("Perpendicular", 49, 69))
sketch4.addConstraint(Sketcher.Constraint("Perpendicular", 51, 71))
sketch4.addConstraint(Sketcher.Constraint("Perpendicular", 53, 73))
sketch4.addConstraint(Sketcher.Constraint("Perpendicular", 55, 75))
sketch4.addConstraint(Sketcher.Constraint("Perpendicular", 57, 77))
sketch4.addConstraint(Sketcher.Constraint("Perpendicular", 59, 79))
sketch4.addConstraint(Sketcher.Constraint("Horizontal", 17, 2, 21, 2))
sketch4.addConstraint(Sketcher.Constraint("Horizontal", 18, 2, 22, 2))
sketch4.addConstraint(Sketcher.Constraint("Horizontal", 16, 2, 24, 2))
sketch4.addConstraint(Sketcher.Constraint("Horizontal", 13, 2, 25, 2))
sketch4.addConstraint(Sketcher.Constraint("Horizontal", 14, 2, 26, 2))
sketch4.addConstraint(Sketcher.Constraint("Horizontal", 12, 2, 28, 2))
sketch4.addConstraint(Sketcher.Constraint("Horizontal", 9, 2, 29, 2))
sketch4.addConstraint(Sketcher.Constraint("Horizontal", 10, 2, 30, 2))
sketch4.addConstraint(Sketcher.Constraint("Horizontal", 8, 2, 32, 2))
sketch4.addConstraint(Sketcher.Constraint("Horizontal", 5, 2, 33, 2))
sketch4.addConstraint(Sketcher.Constraint("Horizontal", 4, 2, 36, 2))
sketch4.addConstraint(Sketcher.Constraint("Horizontal", 1, 2, 37, 2))
sketch4.addConstraint(Sketcher.Constraint("Horizontal", 56, 2, 60, 2))
sketch4.addConstraint(Sketcher.Constraint("Horizontal", 52, 2, 64, 2))
sketch4.addConstraint(Sketcher.Constraint("Horizontal", 58, 1, 66, 1))
sketch4.addConstraint(Sketcher.Constraint("Horizontal", 59, 2, 67, 2))
sketch4.addConstraint(Sketcher.Constraint("Horizontal", 48, 2, 68, 2))
sketch4.addConstraint(Sketcher.Constraint("Horizontal", 54, 1, 70, 1))
sketch4.addConstraint(Sketcher.Constraint("Horizontal", 55, 2, 71, 2))
sketch4.addConstraint(Sketcher.Constraint("Horizontal", 44, 2, 72, 2))
sketch4.addConstraint(Sketcher.Constraint("Horizontal", 50, 1, 74, 1))
sketch4.addConstraint(Sketcher.Constraint("Horizontal", 40, 2, 76, 2))
sketch4.addConstraint(Sketcher.Constraint("Horizontal", 46, 1, 78, 1))
sketch4.addConstraint(Sketcher.Constraint("Vertical", 37, 2, 40, 2))
sketch4.addConstraint(Sketcher.Constraint("Vertical", 33, 2, 44, 2))
sketch4.addConstraint(Sketcher.Constraint("Vertical", 36, 2, 47, 2))
sketch4.addConstraint(Sketcher.Constraint("Vertical", 29, 2, 48, 2))
sketch4.addConstraint(Sketcher.Constraint("Vertical", 32, 2, 51, 2))
sketch4.addConstraint(Sketcher.Constraint("Vertical", 25, 2, 52, 2))
sketch4.addConstraint(Sketcher.Constraint("Vertical", 28, 2, 55, 2))
sketch4.addConstraint(Sketcher.Constraint("Vertical", 21, 2, 56, 2))
sketch4.addConstraint(Sketcher.Constraint("Vertical", 24, 2, 59, 2))
sketch4.addConstraint(Sketcher.Constraint("Radius", 1, 100.0))
sketch4.addConstraint(Sketcher.Constraint("Radius", 3, 350.0))
sketch4.addConstraint(Sketcher.Constraint("Angle", 2, Q("9 deg")))
sketch4.addConstraint(Sketcher.Constraint("Angle", 4, Q("-162 deg")))
sketch4.addConstraint(Sketcher.Constraint("Angle", 6, Q("27 deg")))
sketch4.addConstraint(Sketcher.Constraint("Angle", 8, Q("-144 deg")))
sketch4.addConstraint(Sketcher.Constraint("DistanceY", -1, 1, 4, 2, 30.901699))
sketch4.addConstraint(Sketcher.Constraint("DistanceX", -1, 1, 8, 2, 80.901699))
sketch4.addConstraint(Sketcher.Constraint("DistanceY", -1, 1, 12, 2, 80.901699))
sketch4.addConstraint(Sketcher.Constraint("DistanceX", -1, 1, 16, 2, 30.901699))
sketch4.addConstraint(Sketcher.Constraint("DistanceX", -1, 1, 2, 2, 345.690919))
sketch4.addConstraint(Sketcher.Constraint("DistanceY", -1, 1, 5, 2, 45.39905))
sketch4.addConstraint(Sketcher.Constraint("DistanceX", -1, 1, 9, 2, 70.710678))
sketch4.addConstraint(Sketcher.Constraint("DistanceX", -1, 1, 13, 2, 45.39905))
sketch4.addConstraint(Sketcher.Constraint("DistanceY", -1, 1, 18, 2, 345.690919))
pad4 = body.newObject("PartDesign::Pad", "Pad003")
pad4.Profile = sketch4
pad4.Length = 100
pad4.Reversed = True
doc.recompute()

fillet = body.newObject("PartDesign::Fillet", "Fillet")
fillet.Base = (pad4, edges_at(pad4, [(-500, 0, -210), (350, 0, -210)]))
fillet.Radius = 30
doc.recompute()

mirrored = body.newObject("PartDesign::Mirrored", "Mirrored")
mirrored.Originals = [pad1, pad2, pad3, pad4]
mirrored.MirrorPlane = (doc.getObject("XY_Plane"), [""])
body.Tip = mirrored
doc.recompute()

fillet2 = body.newObject("PartDesign::Fillet", "Fillet001")
fillet2.Base = (mirrored, edges_at(mirrored, [(-500, 0, 210), (350, 0, 210)]))
fillet2.Radius = 30

# Sketch on XY plane
sketch5 = body.newObject("Sketcher::SketchObject", "Sketch004")
sketch5.AttachmentSupport = (doc.getObject("XY_Plane"), [""])
sketch5.MapMode = "FlatFace"
sketch5.AttachmentOffset = App.Placement(Vector(0, 0, 210), App.Rotation())
sketch5.addGeometry(Part.Circle(Vector(0, 0, 0), Vector(0, 0, 1), 50), False)
sketch5.addConstraint(Sketcher.Constraint("Coincident", 0, 3, -1, 1))
sketch5.addConstraint(Sketcher.Constraint("Diameter", 0, 100.0))
pocket1 = body.newObject("PartDesign::Pocket", "Pocket")
pocket1.Profile = sketch5
pocket1.Length = 200

doc.recompute()
